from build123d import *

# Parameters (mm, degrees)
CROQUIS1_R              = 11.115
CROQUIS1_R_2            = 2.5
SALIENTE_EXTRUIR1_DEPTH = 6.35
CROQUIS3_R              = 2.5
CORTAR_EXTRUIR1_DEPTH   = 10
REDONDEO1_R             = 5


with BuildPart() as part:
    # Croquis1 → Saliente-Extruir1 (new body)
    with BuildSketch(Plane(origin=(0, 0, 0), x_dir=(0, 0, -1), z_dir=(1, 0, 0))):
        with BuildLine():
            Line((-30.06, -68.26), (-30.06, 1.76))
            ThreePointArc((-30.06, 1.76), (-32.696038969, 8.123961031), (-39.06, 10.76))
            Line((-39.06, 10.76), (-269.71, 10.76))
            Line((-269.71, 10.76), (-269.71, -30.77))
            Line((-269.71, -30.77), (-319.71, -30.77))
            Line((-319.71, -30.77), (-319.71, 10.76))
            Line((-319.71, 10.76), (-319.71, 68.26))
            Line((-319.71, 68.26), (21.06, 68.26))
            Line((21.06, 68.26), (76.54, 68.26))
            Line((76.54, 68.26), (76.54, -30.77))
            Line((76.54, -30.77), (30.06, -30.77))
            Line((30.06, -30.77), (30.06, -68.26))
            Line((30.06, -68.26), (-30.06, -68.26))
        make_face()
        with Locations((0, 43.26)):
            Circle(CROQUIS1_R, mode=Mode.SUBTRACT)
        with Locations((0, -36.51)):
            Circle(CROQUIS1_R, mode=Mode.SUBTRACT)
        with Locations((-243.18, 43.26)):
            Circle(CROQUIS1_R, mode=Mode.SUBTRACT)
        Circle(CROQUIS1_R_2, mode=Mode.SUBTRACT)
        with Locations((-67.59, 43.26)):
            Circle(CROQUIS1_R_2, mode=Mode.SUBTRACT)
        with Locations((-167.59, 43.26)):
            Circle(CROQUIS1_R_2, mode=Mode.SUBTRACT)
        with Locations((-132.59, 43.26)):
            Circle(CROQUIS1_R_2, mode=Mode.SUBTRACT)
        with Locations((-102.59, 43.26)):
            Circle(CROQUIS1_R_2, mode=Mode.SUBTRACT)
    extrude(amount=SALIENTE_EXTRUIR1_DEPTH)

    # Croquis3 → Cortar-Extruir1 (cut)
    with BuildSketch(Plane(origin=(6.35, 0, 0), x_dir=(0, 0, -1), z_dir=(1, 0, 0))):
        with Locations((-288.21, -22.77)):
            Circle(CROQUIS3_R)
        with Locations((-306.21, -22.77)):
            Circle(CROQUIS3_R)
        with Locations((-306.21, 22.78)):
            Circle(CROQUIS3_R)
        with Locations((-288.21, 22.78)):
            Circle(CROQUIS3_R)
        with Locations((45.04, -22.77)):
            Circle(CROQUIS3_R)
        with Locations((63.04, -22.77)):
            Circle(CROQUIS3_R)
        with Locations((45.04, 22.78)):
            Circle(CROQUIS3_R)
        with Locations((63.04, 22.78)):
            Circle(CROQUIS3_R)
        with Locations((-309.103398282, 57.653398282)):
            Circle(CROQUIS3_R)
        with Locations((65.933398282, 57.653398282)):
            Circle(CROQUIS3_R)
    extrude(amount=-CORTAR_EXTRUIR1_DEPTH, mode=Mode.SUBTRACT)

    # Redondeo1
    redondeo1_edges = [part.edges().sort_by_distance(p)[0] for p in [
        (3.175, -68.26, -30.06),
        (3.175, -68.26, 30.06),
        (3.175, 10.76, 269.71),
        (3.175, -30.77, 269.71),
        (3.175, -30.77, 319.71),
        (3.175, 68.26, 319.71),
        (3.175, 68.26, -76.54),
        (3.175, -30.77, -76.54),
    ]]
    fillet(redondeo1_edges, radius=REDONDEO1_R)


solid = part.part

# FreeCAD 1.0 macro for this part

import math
import FreeCAD as App
import Part
import Sketcher

V = App.Vector


def edges_at(feature, points):
    """Names of the edges that pass closest to the given points."""
    edges = feature.Shape.Edges
    near = lambda p: min(range(len(edges)), key=lambda i: edges[i].distToShape(Part.Vertex(*p))[0])
    return sorted({f"Edge{near(p) + 1}" for p in points})

doc = App.newDocument("Part")
body = doc.addObject("PartDesign::Body", "Body")

# Sketch on YZ plane
sketch1 = doc.addObject("Sketcher::SketchObject", "Sketch")
body.addObject(sketch1)
sketch1.AttachmentSupport = (doc.YZ_Plane, [""])
sketch1.MapMode = "FlatFace"
sketch1.addGeometry(Part.LineSegment(V(1.8, 30.1, 0), V(-68.3, 30.1, 0)), False)
sketch1.addGeometry(Part.LineSegment(V(-68.3, 30.1, 0), V(-68.3, -30.1, 0)), False)
sketch1.addGeometry(Part.LineSegment(V(-68.3, -30.1, 0), V(-30.8, -30.1, 0)), False)
sketch1.addGeometry(Part.LineSegment(V(-30.8, -30.1, 0), V(-30.8, -76.5, 0)), False)
sketch1.addGeometry(Part.LineSegment(V(-30.8, -76.5, 0), V(68.3, -76.5, 0)), False)
sketch1.addGeometry(Part.LineSegment(V(68.3, -76.5, 0), V(68.3, 319.7, 0)), False)
sketch1.addGeometry(Part.LineSegment(V(68.3, 319.7, 0), V(-30.8, 319.7, 0)), False)
sketch1.addGeometry(Part.LineSegment(V(-30.8, 319.7, 0), V(-30.8, 269.7, 0)), False)
sketch1.addGeometry(Part.LineSegment(V(-30.8, 269.7, 0), V(10.8, 269.7, 0)), False)
sketch1.addGeometry(Part.LineSegment(V(10.8, 269.7, 0), V(10.8, 39.1, 0)), False)
sketch1.addGeometry(Part.ArcOfCircle(Part.Circle(V(1.8, 39.1, 0), V(0, 0, 1), 9), math.radians(-90), math.radians(0)), False)
sketch1.addGeometry(Part.Circle(V(-36.5, 0, 0), V(0, 0, 1), 11.1), False)
sketch1.addGeometry(Part.Circle(V(0, 0, 0), V(0, 0, 1), 2.5), False)
sketch1.addGeometry(Part.Circle(V(43.3, 0, 0), V(0, 0, 1), 11.1), False)
sketch1.addGeometry(Part.Circle(V(43.3, 67.6, 0), V(0, 0, 1), 2.5), False)
sketch1.addGeometry(Part.Circle(V(43.3, 102.6, 0), V(0, 0, 1), 2.5), False)
sketch1.addGeometry(Part.Circle(V(43.3, 132.6, 0), V(0, 0, 1), 2.5), False)
sketch1.addGeometry(Part.Circle(V(43.3, 167.6, 0), V(0, 0, 1), 2.5), False)
sketch1.addGeometry(Part.Circle(V(43.3, 243.2, 0), V(0, 0, 1), 11.1), False)
sketch1.addConstraint(Sketcher.Constraint("Coincident", 0, 2, 1, 1))
sketch1.addConstraint(Sketcher.Constraint("Coincident", 1, 2, 2, 1))
sketch1.addConstraint(Sketcher.Constraint("Coincident", 2, 2, 3, 1))
sketch1.addConstraint(Sketcher.Constraint("Coincident", 3, 2, 4, 1))
sketch1.addConstraint(Sketcher.Constraint("Coincident", 4, 2, 5, 1))
sketch1.addConstraint(Sketcher.Constraint("Coincident", 5, 2, 6, 1))
sketch1.addConstraint(Sketcher.Constraint("Coincident", 6, 2, 7, 1))
sketch1.addConstraint(Sketcher.Constraint("Coincident", 7, 2, 8, 1))
sketch1.addConstraint(Sketcher.Constraint("Coincident", 8, 2, 9, 1))
sketch1.addConstraint(Sketcher.Constraint("Tangent", 9, 2, 10, 2))
sketch1.addConstraint(Sketcher.Constraint("Tangent", 10, 1, 0, 1))
sketch1.addConstraint(Sketcher.Constraint("Horizontal", 0))
sketch1.addConstraint(Sketcher.Constraint("Vertical", 1))
sketch1.addConstraint(Sketcher.Constraint("Horizontal", 2))
sketch1.addConstraint(Sketcher.Constraint("Vertical", 3))
sketch1.addConstraint(Sketcher.Constraint("Horizontal", 4))
sketch1.addConstraint(Sketcher.Constraint("Vertical", 5))
sketch1.addConstraint(Sketcher.Constraint("Horizontal", 6))
sketch1.addConstraint(Sketcher.Constraint("Vertical", 7))
sketch1.addConstraint(Sketcher.Constraint("Horizontal", 8))
sketch1.addConstraint(Sketcher.Constraint("Vertical", 9))
sketch1.addConstraint(Sketcher.Constraint("Coincident", 12, 3, -1, 1))
sketch1.addConstraint(Sketcher.Constraint("Equal", 11, 13))
sketch1.addConstraint(Sketcher.Constraint("Equal", 12, 14))
sketch1.addConstraint(Sketcher.Constraint("Equal", 14, 15))
sketch1.addConstraint(Sketcher.Constraint("Equal", 15, 16))
sketch1.addConstraint(Sketcher.Constraint("Equal", 16, 17))
sketch1.addConstraint(Sketcher.Constraint("Equal", 13, 18))
sketch1.addConstraint(Sketcher.Constraint("PointOnObject", 11, 3, -1))
sketch1.addConstraint(Sketcher.Constraint("PointOnObject", 13, 3, -1))
sketch1.addConstraint(Sketcher.Constraint("Vertical", 13, 3, 14, 3))
sketch1.addConstraint(Sketcher.Constraint("Vertical", 14, 3, 15, 3))
sketch1.addConstraint(Sketcher.Constraint("Vertical", 15, 3, 16, 3))
sketch1.addConstraint(Sketcher.Constraint("Vertical", 16, 3, 17, 3))
sketch1.addConstraint(Sketcher.Constraint("Vertical", 17, 3, 18, 3))
sketch1.addConstraint(Sketcher.Constraint("Vertical", 3, 2, 6, 2))
sketch1.addConstraint(Sketcher.Constraint("Diameter", 12, 5.0))
sketch1.addConstraint(Sketcher.Constraint("Radius", 10, 9.0))
sketch1.addConstraint(Sketcher.Constraint("Diameter", 11, 22.23))
sketch1.addConstraint(Sketcher.Constraint("DistanceY", 7, 2, 7, 1, 50.0))
sketch1.addConstraint(Sketcher.Constraint("DistanceY", 14, 3, 15, 3, 35.0))
sketch1.addConstraint(Sketcher.Constraint("DistanceY", 15, 3, 16, 3, 30.0))
sketch1.addConstraint(Sketcher.Constraint("DistanceY", 16, 3, 17, 3, 35.0))
sketch1.addConstraint(Sketcher.Constraint("DistanceX", 13, 3, 4, 2, 25.0))
sketch1.addConstraint(Sketcher.Constraint("DistanceX", 0, 2, 0, 1, 70.02))
sketch1.addConstraint(Sketcher.Constraint("DistanceX", 2, 1, 2, 2, 37.49))
sketch1.addConstraint(Sketcher.Constraint("DistanceX", 4, 1, 4, 2, 99.03))
sketch1.addConstraint(Sketcher.Constraint("DistanceY", 1, 2, 1, 1, 60.12))
sketch1.addConstraint(Sketcher.Constraint("DistanceY", 3, 2, 3, 1, 46.48))
sketch1.addConstraint(Sketcher.Constraint("DistanceY", 5, 1, 5, 2, 396.25))
sketch1.addConstraint(Sketcher.Constraint("DistanceX", -1, 1, 10, 3, 1.76))
sketch1.addConstraint(Sketcher.Constraint("DistanceY", -1, 1, 10, 3, 39.06))
sketch1.addConstraint(Sketcher.Constraint("DistanceX", 11, 3, -1, 1, 36.51))
sketch1.addConstraint(Sketcher.Constraint("DistanceY", -1, 1, 14, 3, 67.59))
sketch1.addConstraint(Sketcher.Constraint("DistanceY", -1, 1, 18, 3, 243.18))
pad1 = doc.addObject("PartDesign::Pad", "Pad")
body.addObject(pad1)
pad1.Profile = sketch1
pad1.Length = 6.35

# Sketch on YZ plane
sketch2 = doc.addObject("Sketcher::SketchObject", "Sketch001")
body.addObject(sketch2)
sketch2.AttachmentSupport = (doc.YZ_Plane, [""])
sketch2.MapMode = "FlatFace"
sketch2.AttachmentOffset = App.Placement(V(0, 0, 6.35), App.Rotation())
sketch2.addGeometry(Part.Circle(V(-22.8, 288.2, 0), V(0, 0, 1), 2.5), False)
sketch2.addGeometry(Part.Circle(V(-22.8, 306.2, 0), V(0, 0, 1), 2.5), False)
sketch2.addGeometry(Part.Circle(V(22.8, 306.2, 0), V(0, 0, 1), 2.5), False)
sketch2.addGeometry(Part.Circle(V(22.8, 288.2, 0), V(0, 0, 1), 2.5), False)
sketch2.addGeometry(Part.Circle(V(-22.8, -45, 0), V(0, 0, 1), 2.5), False)
sketch2.addGeometry(Part.Circle(V(-22.8, -63, 0), V(0, 0, 1), 2.5), False)
sketch2.addGeometry(Part.Circle(V(22.8, -45, 0), V(0, 0, 1), 2.5), False)
sketch2.addGeometry(Part.Circle(V(22.8, -63, 0), V(0, 0, 1), 2.5), False)
sketch2.addGeometry(Part.Circle(V(57.7, 309.1, 0), V(0, 0, 1), 2.5), False)
sketch2.addGeometry(Part.Circle(V(57.7, -65.9, 0), V(0, 0, 1), 2.5), False)
sketch2.addConstraint(Sketcher.Constraint("Equal", 0, 1))
sketch2.addConstraint(Sketcher.Constraint("Equal", 1, 2))
sketch2.addConstraint(Sketcher.Constraint("Equal", 2, 3))
sketch2.addConstraint(Sketcher.Constraint("Equal", 3, 4))
sketch2.addConstraint(Sketcher.Constraint("Equal", 4, 5))
sketch2.addConstraint(Sketcher.Constraint("Equal", 5, 6))
sketch2.addConstraint(Sketcher.Constraint("Equal", 6, 7))
sketch2.addConstraint(Sketcher.Constraint("Equal", 7, 8))
sketch2.addConstraint(Sketcher.Constraint("Equal", 8, 9))
sketch2.addConstraint(Sketcher.Constraint("Horizontal", 1, 3, 2, 3))
sketch2.addConstraint(Sketcher.Constraint("Horizontal", 0, 3, 3, 3))
sketch2.addConstraint(Sketcher.Constraint("Horizontal", 4, 3, 6, 3))
sketch2.addConstraint(Sketcher.Constraint("Horizontal", 5, 3, 7, 3))
sketch2.addConstraint(Sketcher.Constraint("Vertical", 0, 3, 1, 3))
sketch2.addConstraint(Sketcher.Constraint("Vertical", 2, 3, 3, 3))
sketch2.addConstraint(Sketcher.Constraint("Vertical", 1, 3, 4, 3))
sketch2.addConstraint(Sketcher.Constraint("Vertical", 4, 3, 5, 3))
sketch2.addConstraint(Sketcher.Constraint("Vertical", 3, 3, 6, 3))
sketch2.addConstraint(Sketcher.Constraint("Vertical", 6, 3, 7, 3))
sketch2.addConstraint(Sketcher.Constraint("Vertical", 8, 3, 9, 3))
sketch2.addConstraint(Sketcher.Constraint("Diameter", 0, 5.0))
sketch2.addConstraint(Sketcher.Constraint("DistanceY", 0, 3, 1, 3, 18.0))
sketch2.addConstraint(Sketcher.Constraint("DistanceY", 5, 3, 4, 3, 18.0))
sketch2.addConstraint(Sketcher.Constraint("DistanceX", 0, 3, -1, 1, 22.77))
sketch2.addConstraint(Sketcher.Constraint("DistanceY", -1, 1, 0, 3, 288.21))
sketch2.addConstraint(Sketcher.Constraint("DistanceX", -1, 1, 2, 3, 22.78))
sketch2.addConstraint(Sketcher.Constraint("DistanceY", 4, 3, -1, 1, 45.04))
sketch2.addConstraint(Sketcher.Constraint("DistanceX", -1, 1, 8, 3, 57.653398))
sketch2.addConstraint(Sketcher.Constraint("DistanceY", -1, 1, 8, 3, 309.103398))
sketch2.addConstraint(Sketcher.Constraint("DistanceY", 9, 3, -1, 1, 65.933398))
pocket1 = doc.addObject("PartDesign::Pocket", "Pocket")
body.addObject(pocket1)
pocket1.Profile = sketch2
pocket1.Length = 10
doc.recompute()

fillet = doc.addObject("PartDesign::Fillet", "Fillet")
body.addObject(fillet)
fillet.Base = (pocket1, edges_at(pocket1, [
    (3.175, -68.26, -30.06),
    (3.175, -68.26, 30.06),
    (3.175, 10.76, 269.71),
    (3.175, -30.77, 269.71),
    (3.175, -30.77, 319.71),
    (3.175, 68.26, 319.71),
    (3.175, 68.26, -76.54),
    (3.175, -30.77, -76.54),
]))
fillet.Radius = 5

doc.recompute()
